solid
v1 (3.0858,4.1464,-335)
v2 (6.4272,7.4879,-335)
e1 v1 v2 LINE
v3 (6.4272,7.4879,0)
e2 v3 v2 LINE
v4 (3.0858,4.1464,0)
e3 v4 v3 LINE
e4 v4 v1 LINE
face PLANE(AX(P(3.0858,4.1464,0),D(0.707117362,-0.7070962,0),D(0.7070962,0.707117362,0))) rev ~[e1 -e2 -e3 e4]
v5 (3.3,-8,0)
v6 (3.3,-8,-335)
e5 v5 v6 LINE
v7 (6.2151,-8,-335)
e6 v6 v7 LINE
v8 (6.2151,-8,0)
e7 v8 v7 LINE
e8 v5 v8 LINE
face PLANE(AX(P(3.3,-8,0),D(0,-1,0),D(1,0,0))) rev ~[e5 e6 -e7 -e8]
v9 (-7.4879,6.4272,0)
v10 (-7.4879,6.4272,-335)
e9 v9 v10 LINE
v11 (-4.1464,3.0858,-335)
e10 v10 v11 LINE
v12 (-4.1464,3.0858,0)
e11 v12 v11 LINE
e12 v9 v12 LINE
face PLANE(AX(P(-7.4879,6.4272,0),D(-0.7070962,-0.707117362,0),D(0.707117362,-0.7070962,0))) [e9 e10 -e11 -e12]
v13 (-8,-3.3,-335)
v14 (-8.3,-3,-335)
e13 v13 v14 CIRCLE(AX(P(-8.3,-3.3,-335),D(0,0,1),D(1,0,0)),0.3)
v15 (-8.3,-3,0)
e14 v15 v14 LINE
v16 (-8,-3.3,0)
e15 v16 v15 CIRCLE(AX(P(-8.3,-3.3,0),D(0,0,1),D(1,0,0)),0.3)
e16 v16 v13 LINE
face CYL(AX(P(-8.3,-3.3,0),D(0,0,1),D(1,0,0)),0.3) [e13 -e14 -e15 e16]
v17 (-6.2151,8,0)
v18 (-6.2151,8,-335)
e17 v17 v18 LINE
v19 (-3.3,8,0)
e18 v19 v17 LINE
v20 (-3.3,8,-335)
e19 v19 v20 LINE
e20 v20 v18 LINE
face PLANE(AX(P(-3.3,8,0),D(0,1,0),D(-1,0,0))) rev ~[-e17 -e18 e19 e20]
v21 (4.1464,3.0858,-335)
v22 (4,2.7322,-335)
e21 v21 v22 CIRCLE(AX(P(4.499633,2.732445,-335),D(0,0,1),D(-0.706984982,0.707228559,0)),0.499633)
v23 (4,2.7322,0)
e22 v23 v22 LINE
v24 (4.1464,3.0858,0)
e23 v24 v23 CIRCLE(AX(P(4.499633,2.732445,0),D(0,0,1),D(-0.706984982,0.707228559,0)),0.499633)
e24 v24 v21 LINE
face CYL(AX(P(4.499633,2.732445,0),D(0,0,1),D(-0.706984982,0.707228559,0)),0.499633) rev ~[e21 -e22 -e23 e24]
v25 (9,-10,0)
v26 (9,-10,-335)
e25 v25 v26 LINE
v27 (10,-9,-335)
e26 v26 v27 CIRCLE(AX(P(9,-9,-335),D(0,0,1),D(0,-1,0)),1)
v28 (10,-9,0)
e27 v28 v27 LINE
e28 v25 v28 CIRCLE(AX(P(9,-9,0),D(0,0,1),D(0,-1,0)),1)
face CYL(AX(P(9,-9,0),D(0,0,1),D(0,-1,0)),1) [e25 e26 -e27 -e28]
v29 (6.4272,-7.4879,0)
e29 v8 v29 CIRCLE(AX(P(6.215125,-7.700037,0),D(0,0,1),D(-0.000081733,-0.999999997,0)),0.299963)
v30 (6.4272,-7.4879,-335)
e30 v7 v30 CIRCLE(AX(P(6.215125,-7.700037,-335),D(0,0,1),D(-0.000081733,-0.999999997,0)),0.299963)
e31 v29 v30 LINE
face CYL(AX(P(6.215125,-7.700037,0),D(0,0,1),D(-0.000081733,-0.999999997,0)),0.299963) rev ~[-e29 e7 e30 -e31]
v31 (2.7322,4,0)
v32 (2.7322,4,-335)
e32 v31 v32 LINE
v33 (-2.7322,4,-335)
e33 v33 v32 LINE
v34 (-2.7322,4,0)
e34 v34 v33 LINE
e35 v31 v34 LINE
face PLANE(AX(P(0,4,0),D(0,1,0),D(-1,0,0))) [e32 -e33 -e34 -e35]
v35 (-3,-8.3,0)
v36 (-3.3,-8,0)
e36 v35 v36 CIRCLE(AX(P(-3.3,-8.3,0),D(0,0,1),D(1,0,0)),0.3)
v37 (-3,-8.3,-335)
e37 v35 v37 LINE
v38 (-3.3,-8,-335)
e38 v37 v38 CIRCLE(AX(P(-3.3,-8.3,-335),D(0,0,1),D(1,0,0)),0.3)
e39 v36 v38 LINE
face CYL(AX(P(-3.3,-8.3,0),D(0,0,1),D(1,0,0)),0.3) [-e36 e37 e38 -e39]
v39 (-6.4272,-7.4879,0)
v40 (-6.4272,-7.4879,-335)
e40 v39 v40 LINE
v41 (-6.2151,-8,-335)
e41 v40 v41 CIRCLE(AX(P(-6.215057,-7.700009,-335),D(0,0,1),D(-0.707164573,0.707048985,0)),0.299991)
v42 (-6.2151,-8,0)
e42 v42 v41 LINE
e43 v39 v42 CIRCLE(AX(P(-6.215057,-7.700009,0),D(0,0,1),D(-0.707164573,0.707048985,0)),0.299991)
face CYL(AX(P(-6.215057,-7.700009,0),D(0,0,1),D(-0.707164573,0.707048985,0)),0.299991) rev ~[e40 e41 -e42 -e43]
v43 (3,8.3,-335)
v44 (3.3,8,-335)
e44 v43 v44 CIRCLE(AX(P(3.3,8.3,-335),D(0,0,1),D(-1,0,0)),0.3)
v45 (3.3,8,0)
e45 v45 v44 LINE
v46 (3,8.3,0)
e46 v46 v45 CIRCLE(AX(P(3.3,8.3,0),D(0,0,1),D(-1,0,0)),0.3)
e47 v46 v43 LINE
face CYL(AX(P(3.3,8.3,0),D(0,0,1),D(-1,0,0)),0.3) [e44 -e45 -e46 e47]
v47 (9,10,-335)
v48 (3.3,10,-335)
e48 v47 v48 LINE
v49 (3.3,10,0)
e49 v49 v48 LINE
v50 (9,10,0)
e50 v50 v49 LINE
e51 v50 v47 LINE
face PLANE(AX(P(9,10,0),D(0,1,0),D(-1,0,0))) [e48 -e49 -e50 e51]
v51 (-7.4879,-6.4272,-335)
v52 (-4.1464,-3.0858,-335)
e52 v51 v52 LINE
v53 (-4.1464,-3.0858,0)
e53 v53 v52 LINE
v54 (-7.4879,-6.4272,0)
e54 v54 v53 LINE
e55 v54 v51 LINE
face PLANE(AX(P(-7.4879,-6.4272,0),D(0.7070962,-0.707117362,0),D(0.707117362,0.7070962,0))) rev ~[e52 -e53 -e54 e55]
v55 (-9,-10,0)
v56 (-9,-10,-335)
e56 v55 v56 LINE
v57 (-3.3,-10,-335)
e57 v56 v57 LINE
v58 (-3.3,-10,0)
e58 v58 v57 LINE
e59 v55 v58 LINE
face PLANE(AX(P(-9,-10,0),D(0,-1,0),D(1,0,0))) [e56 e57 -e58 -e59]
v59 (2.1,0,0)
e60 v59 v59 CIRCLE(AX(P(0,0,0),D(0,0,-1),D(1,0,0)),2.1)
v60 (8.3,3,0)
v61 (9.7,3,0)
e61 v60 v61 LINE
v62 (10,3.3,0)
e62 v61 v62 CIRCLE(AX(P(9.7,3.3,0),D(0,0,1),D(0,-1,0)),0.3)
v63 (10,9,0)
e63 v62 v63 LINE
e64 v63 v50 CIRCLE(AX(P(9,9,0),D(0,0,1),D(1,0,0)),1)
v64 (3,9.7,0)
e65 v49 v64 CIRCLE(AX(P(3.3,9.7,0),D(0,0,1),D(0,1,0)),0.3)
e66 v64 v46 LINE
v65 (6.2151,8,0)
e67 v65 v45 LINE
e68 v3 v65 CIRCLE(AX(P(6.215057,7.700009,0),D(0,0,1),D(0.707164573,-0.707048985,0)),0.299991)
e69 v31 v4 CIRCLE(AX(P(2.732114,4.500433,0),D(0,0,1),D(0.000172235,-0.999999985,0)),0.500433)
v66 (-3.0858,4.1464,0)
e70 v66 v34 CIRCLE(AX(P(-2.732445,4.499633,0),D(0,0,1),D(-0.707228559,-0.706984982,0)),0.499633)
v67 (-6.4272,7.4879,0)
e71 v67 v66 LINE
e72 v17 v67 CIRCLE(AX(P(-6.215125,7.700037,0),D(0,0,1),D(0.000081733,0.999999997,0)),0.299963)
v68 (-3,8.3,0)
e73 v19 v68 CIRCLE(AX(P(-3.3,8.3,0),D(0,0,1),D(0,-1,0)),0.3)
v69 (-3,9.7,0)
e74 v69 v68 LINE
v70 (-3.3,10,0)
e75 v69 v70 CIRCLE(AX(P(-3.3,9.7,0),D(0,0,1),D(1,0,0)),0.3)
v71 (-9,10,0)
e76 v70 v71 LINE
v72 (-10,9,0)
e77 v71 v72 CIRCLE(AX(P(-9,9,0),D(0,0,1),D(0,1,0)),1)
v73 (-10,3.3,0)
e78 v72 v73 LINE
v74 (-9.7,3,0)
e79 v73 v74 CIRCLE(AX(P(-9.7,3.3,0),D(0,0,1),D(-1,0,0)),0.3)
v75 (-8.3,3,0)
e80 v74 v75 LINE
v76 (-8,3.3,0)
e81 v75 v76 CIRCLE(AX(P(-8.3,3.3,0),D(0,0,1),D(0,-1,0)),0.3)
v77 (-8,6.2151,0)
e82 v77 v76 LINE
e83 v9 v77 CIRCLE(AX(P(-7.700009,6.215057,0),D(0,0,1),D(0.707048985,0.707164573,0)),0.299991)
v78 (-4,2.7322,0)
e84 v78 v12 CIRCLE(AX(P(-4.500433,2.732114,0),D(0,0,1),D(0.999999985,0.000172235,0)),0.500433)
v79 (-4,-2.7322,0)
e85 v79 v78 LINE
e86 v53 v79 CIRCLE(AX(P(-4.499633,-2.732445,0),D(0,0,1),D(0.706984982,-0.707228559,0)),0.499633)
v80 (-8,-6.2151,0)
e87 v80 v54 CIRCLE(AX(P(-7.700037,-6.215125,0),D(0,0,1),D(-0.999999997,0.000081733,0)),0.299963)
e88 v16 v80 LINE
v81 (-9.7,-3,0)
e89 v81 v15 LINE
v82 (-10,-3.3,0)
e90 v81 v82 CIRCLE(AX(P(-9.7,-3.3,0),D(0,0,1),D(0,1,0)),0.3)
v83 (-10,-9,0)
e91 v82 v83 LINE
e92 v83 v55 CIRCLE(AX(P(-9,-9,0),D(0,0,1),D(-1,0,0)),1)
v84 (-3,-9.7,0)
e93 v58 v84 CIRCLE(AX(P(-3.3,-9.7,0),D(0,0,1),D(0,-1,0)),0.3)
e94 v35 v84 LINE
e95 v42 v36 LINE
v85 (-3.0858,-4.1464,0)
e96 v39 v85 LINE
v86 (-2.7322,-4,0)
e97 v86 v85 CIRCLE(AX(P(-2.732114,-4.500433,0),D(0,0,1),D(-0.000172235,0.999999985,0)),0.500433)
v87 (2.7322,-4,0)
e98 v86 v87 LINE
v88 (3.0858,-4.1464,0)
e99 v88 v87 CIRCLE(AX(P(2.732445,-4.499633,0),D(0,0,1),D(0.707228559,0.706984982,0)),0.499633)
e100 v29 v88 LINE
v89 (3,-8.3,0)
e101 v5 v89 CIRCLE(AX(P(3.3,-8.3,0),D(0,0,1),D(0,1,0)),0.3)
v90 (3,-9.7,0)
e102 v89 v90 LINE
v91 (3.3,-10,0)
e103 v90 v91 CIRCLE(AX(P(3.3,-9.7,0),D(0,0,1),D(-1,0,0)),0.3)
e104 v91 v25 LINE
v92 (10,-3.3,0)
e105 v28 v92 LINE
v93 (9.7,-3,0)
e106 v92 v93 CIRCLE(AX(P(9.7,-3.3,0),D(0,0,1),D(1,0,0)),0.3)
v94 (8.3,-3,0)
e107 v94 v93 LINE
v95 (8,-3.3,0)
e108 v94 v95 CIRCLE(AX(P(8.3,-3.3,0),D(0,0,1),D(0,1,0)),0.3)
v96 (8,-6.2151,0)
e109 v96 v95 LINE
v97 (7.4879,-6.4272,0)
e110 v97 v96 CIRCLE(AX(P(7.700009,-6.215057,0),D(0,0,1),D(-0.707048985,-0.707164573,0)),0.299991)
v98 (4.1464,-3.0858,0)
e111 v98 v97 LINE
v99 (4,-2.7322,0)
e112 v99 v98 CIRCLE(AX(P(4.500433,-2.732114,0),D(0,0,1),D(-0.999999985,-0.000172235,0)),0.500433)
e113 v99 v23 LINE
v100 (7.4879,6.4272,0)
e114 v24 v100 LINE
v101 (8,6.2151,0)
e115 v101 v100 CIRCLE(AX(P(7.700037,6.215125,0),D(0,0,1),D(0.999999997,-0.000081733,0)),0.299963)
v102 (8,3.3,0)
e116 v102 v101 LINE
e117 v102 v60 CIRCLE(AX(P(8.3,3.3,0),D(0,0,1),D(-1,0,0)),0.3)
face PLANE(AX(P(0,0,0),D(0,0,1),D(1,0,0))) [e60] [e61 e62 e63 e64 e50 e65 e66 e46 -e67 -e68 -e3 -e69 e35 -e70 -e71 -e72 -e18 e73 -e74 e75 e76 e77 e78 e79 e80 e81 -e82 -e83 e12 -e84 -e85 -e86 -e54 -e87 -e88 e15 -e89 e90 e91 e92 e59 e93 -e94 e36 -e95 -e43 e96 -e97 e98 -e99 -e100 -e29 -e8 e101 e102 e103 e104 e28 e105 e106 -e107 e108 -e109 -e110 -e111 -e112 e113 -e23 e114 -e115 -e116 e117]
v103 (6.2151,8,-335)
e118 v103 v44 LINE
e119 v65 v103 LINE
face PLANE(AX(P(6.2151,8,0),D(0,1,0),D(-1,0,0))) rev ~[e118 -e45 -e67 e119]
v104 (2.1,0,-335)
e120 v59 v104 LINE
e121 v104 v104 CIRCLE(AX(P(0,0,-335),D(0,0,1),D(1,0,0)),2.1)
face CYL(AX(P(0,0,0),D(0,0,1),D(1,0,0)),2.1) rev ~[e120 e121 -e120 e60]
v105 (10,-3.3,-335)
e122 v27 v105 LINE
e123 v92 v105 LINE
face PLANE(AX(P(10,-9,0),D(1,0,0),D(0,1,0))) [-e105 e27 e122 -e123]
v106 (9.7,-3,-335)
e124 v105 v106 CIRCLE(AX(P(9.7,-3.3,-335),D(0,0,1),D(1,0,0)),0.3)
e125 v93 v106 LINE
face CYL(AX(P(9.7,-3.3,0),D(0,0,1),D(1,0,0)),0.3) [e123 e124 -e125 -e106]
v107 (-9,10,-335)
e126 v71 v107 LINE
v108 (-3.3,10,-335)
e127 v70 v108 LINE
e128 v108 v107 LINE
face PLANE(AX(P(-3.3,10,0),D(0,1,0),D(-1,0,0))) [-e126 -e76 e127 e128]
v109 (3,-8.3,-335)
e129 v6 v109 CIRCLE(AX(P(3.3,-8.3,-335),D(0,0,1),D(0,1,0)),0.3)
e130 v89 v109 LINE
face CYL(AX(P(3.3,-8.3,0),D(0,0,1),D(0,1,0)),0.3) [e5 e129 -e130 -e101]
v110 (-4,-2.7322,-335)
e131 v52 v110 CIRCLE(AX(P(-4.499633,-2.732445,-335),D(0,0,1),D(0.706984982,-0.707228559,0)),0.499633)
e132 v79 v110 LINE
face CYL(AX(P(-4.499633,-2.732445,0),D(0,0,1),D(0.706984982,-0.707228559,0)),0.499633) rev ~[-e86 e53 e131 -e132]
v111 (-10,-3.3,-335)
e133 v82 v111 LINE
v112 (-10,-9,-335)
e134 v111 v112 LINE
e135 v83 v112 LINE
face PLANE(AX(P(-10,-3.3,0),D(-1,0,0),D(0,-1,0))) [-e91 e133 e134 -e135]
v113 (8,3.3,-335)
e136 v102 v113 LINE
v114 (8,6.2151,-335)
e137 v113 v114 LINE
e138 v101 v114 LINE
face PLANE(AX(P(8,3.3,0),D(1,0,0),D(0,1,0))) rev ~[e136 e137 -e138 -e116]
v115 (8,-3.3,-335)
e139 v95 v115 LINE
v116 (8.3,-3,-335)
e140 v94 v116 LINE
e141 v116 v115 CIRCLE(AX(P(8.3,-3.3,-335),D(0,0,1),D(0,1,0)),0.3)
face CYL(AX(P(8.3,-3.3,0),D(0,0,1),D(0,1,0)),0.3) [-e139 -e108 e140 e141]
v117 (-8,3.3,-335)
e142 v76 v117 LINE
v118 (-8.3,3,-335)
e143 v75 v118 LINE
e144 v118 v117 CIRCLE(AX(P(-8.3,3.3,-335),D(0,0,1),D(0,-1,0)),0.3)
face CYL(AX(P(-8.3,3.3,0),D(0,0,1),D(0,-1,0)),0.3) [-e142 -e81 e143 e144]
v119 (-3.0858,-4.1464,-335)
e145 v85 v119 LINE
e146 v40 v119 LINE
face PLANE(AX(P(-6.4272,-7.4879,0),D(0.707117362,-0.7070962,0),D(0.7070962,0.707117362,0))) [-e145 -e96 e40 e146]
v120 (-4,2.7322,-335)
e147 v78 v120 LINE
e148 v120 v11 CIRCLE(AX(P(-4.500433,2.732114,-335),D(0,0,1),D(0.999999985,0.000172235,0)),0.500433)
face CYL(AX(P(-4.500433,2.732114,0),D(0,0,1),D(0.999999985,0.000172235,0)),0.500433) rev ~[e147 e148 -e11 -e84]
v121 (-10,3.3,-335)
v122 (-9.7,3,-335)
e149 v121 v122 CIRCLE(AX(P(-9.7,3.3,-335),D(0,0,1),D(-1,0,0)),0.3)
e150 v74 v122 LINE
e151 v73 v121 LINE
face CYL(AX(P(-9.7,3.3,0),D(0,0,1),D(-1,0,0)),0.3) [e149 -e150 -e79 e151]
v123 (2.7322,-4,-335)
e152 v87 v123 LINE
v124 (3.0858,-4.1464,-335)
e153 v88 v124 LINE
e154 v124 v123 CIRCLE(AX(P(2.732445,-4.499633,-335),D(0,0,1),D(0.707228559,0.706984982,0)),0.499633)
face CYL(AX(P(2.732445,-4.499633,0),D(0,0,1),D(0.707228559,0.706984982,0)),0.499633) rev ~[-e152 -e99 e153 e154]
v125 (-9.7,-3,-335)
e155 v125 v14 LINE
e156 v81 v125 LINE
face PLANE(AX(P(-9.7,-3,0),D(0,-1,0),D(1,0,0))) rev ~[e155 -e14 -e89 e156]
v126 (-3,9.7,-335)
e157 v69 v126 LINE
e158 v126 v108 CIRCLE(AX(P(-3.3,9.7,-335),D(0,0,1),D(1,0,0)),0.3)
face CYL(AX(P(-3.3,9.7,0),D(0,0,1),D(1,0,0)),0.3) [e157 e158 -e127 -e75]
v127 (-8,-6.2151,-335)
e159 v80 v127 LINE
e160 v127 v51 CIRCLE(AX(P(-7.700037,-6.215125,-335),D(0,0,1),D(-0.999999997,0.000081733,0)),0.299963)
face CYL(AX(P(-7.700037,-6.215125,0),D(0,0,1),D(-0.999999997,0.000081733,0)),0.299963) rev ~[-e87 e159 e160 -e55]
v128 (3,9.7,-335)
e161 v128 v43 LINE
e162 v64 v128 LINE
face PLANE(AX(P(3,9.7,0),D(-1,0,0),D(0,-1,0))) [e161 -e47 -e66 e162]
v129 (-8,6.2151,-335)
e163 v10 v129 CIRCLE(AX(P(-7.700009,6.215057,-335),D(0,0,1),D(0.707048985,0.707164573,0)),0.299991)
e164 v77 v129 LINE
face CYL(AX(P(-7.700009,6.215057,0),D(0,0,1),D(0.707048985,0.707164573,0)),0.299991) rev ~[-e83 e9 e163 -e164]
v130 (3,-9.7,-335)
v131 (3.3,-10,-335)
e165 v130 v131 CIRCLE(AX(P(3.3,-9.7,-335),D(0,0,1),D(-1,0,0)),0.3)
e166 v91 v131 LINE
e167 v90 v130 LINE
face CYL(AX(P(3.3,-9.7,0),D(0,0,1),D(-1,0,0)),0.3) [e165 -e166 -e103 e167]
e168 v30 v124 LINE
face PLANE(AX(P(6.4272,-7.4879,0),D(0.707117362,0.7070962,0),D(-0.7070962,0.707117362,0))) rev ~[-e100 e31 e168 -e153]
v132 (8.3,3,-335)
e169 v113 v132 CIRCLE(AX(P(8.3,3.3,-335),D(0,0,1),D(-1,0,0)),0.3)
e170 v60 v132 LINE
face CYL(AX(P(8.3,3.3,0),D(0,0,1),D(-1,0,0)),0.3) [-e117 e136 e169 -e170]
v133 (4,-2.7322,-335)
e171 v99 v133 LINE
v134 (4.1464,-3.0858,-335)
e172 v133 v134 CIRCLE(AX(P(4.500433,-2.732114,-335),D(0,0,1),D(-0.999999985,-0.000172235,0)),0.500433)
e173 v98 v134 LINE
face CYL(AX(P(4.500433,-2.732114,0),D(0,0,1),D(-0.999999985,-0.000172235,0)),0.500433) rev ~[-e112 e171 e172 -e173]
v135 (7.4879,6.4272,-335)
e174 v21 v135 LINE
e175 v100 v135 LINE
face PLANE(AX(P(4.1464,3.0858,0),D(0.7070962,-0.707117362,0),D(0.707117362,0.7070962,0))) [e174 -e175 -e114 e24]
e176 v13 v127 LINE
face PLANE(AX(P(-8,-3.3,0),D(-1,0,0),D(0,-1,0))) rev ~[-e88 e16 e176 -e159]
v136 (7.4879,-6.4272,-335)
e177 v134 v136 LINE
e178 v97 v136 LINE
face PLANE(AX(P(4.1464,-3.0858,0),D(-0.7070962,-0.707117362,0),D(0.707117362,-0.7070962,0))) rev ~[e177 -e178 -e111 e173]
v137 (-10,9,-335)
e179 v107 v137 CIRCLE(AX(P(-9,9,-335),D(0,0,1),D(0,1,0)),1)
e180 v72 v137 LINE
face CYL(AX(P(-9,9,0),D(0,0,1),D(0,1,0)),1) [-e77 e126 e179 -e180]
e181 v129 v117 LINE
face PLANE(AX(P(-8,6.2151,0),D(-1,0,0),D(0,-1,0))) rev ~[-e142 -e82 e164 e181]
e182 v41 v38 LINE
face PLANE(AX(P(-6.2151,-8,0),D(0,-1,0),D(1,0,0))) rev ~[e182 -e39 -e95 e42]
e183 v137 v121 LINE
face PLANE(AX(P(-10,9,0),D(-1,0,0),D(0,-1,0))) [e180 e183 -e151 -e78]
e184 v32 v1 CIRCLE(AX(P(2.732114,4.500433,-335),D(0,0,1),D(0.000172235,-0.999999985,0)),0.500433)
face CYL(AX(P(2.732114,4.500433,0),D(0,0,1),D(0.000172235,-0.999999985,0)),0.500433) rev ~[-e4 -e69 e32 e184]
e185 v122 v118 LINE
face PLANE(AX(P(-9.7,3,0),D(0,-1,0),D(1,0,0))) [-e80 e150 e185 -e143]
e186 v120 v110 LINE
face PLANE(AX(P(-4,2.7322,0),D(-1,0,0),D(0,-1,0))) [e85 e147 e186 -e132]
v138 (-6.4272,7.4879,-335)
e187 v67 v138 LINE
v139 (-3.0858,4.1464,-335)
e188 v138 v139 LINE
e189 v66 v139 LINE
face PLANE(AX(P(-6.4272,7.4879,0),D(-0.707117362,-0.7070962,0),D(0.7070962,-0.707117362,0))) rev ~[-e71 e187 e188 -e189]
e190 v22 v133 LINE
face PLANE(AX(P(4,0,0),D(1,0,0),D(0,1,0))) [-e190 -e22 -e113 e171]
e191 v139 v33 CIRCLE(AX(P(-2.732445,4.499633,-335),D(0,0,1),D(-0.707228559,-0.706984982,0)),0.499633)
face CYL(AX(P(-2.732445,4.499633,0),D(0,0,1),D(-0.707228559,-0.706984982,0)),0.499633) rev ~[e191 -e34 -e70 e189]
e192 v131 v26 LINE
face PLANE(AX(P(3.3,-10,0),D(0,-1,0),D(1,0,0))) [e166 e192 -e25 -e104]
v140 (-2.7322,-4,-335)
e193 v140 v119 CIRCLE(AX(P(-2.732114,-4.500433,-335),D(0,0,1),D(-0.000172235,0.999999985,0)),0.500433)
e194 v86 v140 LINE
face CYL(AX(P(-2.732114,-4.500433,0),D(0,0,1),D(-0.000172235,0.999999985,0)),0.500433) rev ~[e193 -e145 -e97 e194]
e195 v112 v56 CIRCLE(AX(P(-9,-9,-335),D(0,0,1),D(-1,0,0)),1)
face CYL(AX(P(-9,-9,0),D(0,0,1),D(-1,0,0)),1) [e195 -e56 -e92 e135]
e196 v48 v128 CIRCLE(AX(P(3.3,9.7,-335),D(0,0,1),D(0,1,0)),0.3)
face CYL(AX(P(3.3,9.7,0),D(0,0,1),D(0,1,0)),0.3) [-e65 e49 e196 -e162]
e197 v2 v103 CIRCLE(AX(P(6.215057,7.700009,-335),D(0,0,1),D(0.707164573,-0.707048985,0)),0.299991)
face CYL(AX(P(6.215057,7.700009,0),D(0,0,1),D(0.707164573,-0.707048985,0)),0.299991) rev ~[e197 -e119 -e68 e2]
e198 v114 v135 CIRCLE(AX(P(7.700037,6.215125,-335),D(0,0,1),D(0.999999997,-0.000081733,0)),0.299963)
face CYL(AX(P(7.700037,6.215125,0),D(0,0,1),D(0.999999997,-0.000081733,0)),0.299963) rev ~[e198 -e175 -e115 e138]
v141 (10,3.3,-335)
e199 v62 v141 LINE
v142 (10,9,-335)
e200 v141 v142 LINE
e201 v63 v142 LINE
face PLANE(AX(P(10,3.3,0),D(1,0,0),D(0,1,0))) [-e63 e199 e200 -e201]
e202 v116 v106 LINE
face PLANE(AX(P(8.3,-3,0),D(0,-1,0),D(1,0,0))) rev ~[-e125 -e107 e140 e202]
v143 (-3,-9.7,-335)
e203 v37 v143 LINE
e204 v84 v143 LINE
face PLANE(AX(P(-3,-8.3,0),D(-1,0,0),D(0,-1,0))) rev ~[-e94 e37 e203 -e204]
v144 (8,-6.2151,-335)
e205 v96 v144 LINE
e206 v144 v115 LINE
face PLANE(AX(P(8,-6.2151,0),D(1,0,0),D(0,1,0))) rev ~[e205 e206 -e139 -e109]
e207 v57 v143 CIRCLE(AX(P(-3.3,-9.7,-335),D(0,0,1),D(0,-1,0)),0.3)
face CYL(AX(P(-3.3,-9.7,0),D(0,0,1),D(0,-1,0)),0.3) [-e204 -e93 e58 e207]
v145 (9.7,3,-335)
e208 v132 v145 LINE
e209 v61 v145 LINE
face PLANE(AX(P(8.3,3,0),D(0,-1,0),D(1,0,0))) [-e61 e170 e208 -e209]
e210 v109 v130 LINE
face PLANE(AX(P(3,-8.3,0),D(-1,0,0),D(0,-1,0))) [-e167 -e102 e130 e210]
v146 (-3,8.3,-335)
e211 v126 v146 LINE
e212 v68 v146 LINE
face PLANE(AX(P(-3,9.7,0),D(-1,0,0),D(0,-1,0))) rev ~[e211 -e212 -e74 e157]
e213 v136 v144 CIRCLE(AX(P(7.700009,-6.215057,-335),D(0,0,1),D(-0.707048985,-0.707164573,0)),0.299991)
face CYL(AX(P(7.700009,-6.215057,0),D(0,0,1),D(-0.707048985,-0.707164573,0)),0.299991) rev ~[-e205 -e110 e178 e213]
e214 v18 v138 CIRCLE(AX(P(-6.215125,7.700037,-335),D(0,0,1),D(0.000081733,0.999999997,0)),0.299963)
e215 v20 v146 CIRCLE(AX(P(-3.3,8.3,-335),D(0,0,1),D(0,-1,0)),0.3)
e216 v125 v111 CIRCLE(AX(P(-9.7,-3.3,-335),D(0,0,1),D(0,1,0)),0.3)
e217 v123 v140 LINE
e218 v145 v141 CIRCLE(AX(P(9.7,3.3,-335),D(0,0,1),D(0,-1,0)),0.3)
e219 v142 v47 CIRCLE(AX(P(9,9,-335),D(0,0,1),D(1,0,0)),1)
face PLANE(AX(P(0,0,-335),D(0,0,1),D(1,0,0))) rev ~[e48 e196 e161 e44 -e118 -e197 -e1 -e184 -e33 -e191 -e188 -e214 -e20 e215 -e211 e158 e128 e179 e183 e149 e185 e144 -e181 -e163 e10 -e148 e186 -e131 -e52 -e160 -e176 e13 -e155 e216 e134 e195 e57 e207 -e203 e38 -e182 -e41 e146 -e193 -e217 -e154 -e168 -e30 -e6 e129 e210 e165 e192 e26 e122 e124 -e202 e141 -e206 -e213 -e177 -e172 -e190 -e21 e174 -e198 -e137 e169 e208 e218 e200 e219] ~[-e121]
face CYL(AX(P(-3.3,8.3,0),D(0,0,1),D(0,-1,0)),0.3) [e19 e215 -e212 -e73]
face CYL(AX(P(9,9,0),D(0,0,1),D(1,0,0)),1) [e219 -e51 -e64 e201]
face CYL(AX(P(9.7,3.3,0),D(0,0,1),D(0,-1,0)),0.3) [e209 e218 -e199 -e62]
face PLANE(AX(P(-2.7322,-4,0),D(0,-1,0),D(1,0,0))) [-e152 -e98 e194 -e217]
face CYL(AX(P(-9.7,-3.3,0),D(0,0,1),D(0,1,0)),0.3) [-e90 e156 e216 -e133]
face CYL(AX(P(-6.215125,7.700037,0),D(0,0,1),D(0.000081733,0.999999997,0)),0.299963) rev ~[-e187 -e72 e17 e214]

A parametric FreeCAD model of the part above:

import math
import FreeCAD as App
import Part
import Sketcher

V = App.Vector
Q = App.Units.Quantity

doc = App.newDocument("Part")
params = doc.addObject("Spreadsheet::Sheet", "Params")
for row, (alias, value) in enumerate([
    ("sketch1_radius", "1 mm"),
    ("sketch1_radius2", "0.5 mm"),
    ("sketch1_radius3", "0.3 mm"),
    ("sketch1_width", "5.7 mm"),
    ("pad1_length", "335 mm"),
    ("sketch2_diameter", "4.2 mm"),
    ("pocket1_length", "335 mm"),
], start=1):
    params.set(f"A{row}", alias)
    params.set(f"B{row}", "=" + value)
    params.setAlias(f"B{row}", alias)

body = doc.addObject("PartDesign::Body", "Body")

# Sketch on XY plane
sketch1 = doc.addObject("Sketcher::SketchObject", "Sketch")
body.addObject(sketch1)
sketch1.AttachmentSupport = (doc.XY_Plane, [""])
sketch1.MapMode = "FlatFace"
sketch1.addGeometry([
    Part.LineSegment(V(-4, 2.73, 0), V(-4, -2.73, 0)),  # 0
    Part.ArcOfCircle(Part.Circle(V(-4.5, -2.73, 0), V(0, 0, 1), 0.5), math.radians(-45), math.radians(0)),  # 1
    Part.LineSegment(V(-4.15, -3.09, 0), V(-7.49, -6.43, 0)),  # 2
    Part.ArcOfCircle(Part.Circle(V(-7.7, -6.22, 0), V(0, 0, 1), 0.3), math.radians(180), math.radians(315)),  # 3
    Part.LineSegment(V(-8, -6.22, 0), V(-8, -3.3, 0)),  # 4
    Part.ArcOfCircle(Part.Circle(V(-8.3, -3.3, 0), V(0, 0, 1), 0.3), math.radians(0), math.radians(90)),  # 5
    Part.LineSegment(V(-8.3, -3, 0), V(-9.7, -3, 0)),  # 6
    Part.ArcOfCircle(Part.Circle(V(-9.7, -3.3, 0), V(0, 0, 1), 0.3), math.radians(90), math.radians(180)),  # 7
    Part.LineSegment(V(-10, -3.3, 0), V(-10, -9, 0)),  # 8
    Part.ArcOfCircle(Part.Circle(V(-9, -9, 0), V(0, 0, 1), 1), math.radians(180), math.radians(270)),  # 9
    Part.LineSegment(V(-9, -10, 0), V(-3.3, -10, 0)),  # 10
    Part.ArcOfCircle(Part.Circle(V(-3.3, -9.7, 0), V(0, 0, 1), 0.3), math.radians(-90), math.radians(0)),  # 11
    Part.LineSegment(V(-3, -9.7, 0), V(-3, -8.3, 0)),  # 12
    Part.ArcOfCircle(Part.Circle(V(-3.3, -8.3, 0), V(0, 0, 1), 0.3), math.radians(0), math.radians(90)),  # 13
    Part.LineSegment(V(-3.3, -8, 0), V(-6.22, -8, 0)),  # 14
    Part.ArcOfCircle(Part.Circle(V(-6.22, -7.7, 0), V(0, 0, 1), 0.3), math.radians(135), math.radians(270)),  # 15
    Part.LineSegment(V(-6.43, -7.49, 0), V(-3.09, -4.15, 0)),  # 16
    Part.ArcOfCircle(Part.Circle(V(-2.73, -4.5, 0), V(0, 0, 1), 0.5), math.radians(90), math.radians(135)),  # 17
    Part.LineSegment(V(-2.73, -4, 0), V(2.73, -4, 0)),  # 18
    Part.ArcOfCircle(Part.Circle(V(2.73, -4.5, 0), V(0, 0, 1), 0.5), math.radians(45), math.radians(90)),  # 19
    Part.LineSegment(V(3.09, -4.15, 0), V(6.43, -7.49, 0)),  # 20
    Part.ArcOfCircle(Part.Circle(V(6.22, -7.7, 0), V(0, 0, 1), 0.3), math.radians(-90), math.radians(45)),  # 21
    Part.LineSegment(V(6.22, -8, 0), V(3.3, -8, 0)),  # 22
    Part.ArcOfCircle(Part.Circle(V(3.3, -8.3, 0), V(0, 0, 1), 0.3), math.radians(90), math.radians(180)),  # 23
    Part.LineSegment(V(3, -8.3, 0), V(3, -9.7, 0)),  # 24
    Part.ArcOfCircle(Part.Circle(V(3.3, -9.7, 0), V(0, 0, 1), 0.3), math.radians(180), math.radians(270)),  # 25
    Part.LineSegment(V(3.3, -10, 0), V(9, -10, 0)),  # 26
    Part.ArcOfCircle(Part.Circle(V(9, -9, 0), V(0, 0, 1), 1), math.radians(-90), math.radians(0)),  # 27
    Part.LineSegment(V(10, -9, 0), V(10, -3.3, 0)),  # 28
    Part.ArcOfCircle(Part.Circle(V(9.7, -3.3, 0), V(0, 0, 1), 0.3), math.radians(0), math.radians(90)),  # 29
    Part.LineSegment(V(9.7, -3, 0), V(8.3, -3, 0)),  # 30
    Part.ArcOfCircle(Part.Circle(V(8.3, -3.3, 0), V(0, 0, 1), 0.3), math.radians(90), math.radians(180)),  # 31
    Part.LineSegment(V(8, -3.3, 0), V(8, -6.22, 0)),  # 32
    Part.ArcOfCircle(Part.Circle(V(7.7, -6.22, 0), V(0, 0, 1), 0.3), math.radians(-135), math.radians(0)),  # 33
    Part.LineSegment(V(7.49, -6.43, 0), V(4.15, -3.09, 0)),  # 34
    Part.ArcOfCircle(Part.Circle(V(4.5, -2.73, 0), V(0, 0, 1), 0.5), math.radians(180), math.radians(225)),  # 35
    Part.LineSegment(V(4, -2.73, 0), V(4, 2.73, 0)),  # 36
    Part.ArcOfCircle(Part.Circle(V(4.5, 2.73, 0), V(0, 0, 1), 0.5), math.radians(135), math.radians(180)),  # 37
    Part.LineSegment(V(4.15, 3.09, 0), V(7.49, 6.43, 0)),  # 38
    Part.ArcOfCircle(Part.Circle(V(7.7, 6.22, 0), V(0, 0, 1), 0.3), math.radians(0), math.radians(135)),  # 39
    Part.LineSegment(V(8, 6.22, 0), V(8, 3.3, 0)),  # 40
    Part.ArcOfCircle(Part.Circle(V(8.3, 3.3, 0), V(0, 0, 1), 0.3), math.radians(180), math.radians(270)),  # 41
    Part.LineSegment(V(8.3, 3, 0), V(9.7, 3, 0)),  # 42
    Part.ArcOfCircle(Part.Circle(V(9.7, 3.3, 0), V(0, 0, 1), 0.3), math.radians(-90), math.radians(0)),  # 43
    Part.LineSegment(V(10, 3.3, 0), V(10, 9, 0)),  # 44
    Part.ArcOfCircle(Part.Circle(V(9, 9, 0), V(0, 0, 1), 1), math.radians(0), math.radians(90)),  # 45
    Part.LineSegment(V(9, 10, 0), V(3.3, 10, 0)),  # 46
    Part.ArcOfCircle(Part.Circle(V(3.3, 9.7, 0), V(0, 0, 1), 0.3), math.radians(90), math.radians(180)),  # 47
    Part.LineSegment(V(3, 9.7, 0), V(3, 8.3, 0)),  # 48
    Part.ArcOfCircle(Part.Circle(V(3.3, 8.3, 0), V(0, 0, 1), 0.3), math.radians(180), math.radians(270)),  # 49
    Part.LineSegment(V(3.3, 8, 0), V(6.22, 8, 0)),  # 50
    Part.ArcOfCircle(Part.Circle(V(6.22, 7.7, 0), V(0, 0, 1), 0.3), math.radians(-45), math.radians(90)),  # 51
    Part.LineSegment(V(6.43, 7.49, 0), V(3.09, 4.15, 0)),  # 52
    Part.ArcOfCircle(Part.Circle(V(2.73, 4.5, 0), V(0, 0, 1), 0.5), math.radians(-90), math.radians(-45)),  # 53
    Part.LineSegment(V(2.73, 4, 0), V(-2.73, 4, 0)),  # 54
    Part.ArcOfCircle(Part.Circle(V(-2.73, 4.5, 0), V(0, 0, 1), 0.5), math.radians(-135), math.radians(-90)),  # 55
    Part.LineSegment(V(-3.09, 4.15, 0), V(-6.43, 7.49, 0)),  # 56
    Part.ArcOfCircle(Part.Circle(V(-6.22, 7.7, 0), V(0, 0, 1), 0.3), math.radians(90), math.radians(225)),  # 57
    Part.LineSegment(V(-6.22, 8, 0), V(-3.3, 8, 0)),  # 58
    Part.ArcOfCircle(Part.Circle(V(-3.3, 8.3, 0), V(0, 0, 1), 0.3), math.radians(-90), math.radians(0)),  # 59
    Part.LineSegment(V(-3, 8.3, 0), V(-3, 9.7, 0)),  # 60
    Part.ArcOfCircle(Part.Circle(V(-3.3, 9.7, 0), V(0, 0, 1), 0.3), math.radians(0), math.radians(90)),  # 61
    Part.LineSegment(V(-3.3, 10, 0), V(-9, 10, 0)),  # 62
    Part.ArcOfCircle(Part.Circle(V(-9, 9, 0), V(0, 0, 1), 1), math.radians(90), math.radians(180)),  # 63
    Part.LineSegment(V(-10, 9, 0), V(-10, 3.3, 0)),  # 64
    Part.ArcOfCircle(Part.Circle(V(-9.7, 3.3, 0), V(0, 0, 1), 0.3), math.radians(180), math.radians(270)),  # 65
    Part.LineSegment(V(-9.7, 3, 0), V(-8.3, 3, 0)),  # 66
    Part.ArcOfCircle(Part.Circle(V(-8.3, 3.3, 0), V(0, 0, 1), 0.3), math.radians(-90), math.radians(0)),  # 67
    Part.LineSegment(V(-8, 3.3, 0), V(-8, 6.22, 0)),  # 68
    Part.ArcOfCircle(Part.Circle(V(-7.7, 6.22, 0), V(0, 0, 1), 0.3), math.radians(45), math.radians(180)),  # 69
    Part.LineSegment(V(-7.49, 6.43, 0), V(-4.15, 3.09, 0)),  # 70
    Part.ArcOfCircle(Part.Circle(V(-4.5, 2.73, 0), V(0, 0, 1), 0.5), math.radians(0), math.radians(45)),  # 71
], False)
sketch1.addConstraint([
    Sketcher.Constraint("Tangent", 0, 2, 1, 2),
    Sketcher.Constraint("Tangent", 1, 1, 2, 1),
    Sketcher.Constraint("Tangent", 2, 2, 3, 2),
    Sketcher.Constraint("Tangent", 3, 1, 4, 1),
    Sketcher.Constraint("Tangent", 4, 2, 5, 1),
    Sketcher.Constraint("Tangent", 5, 2, 6, 1),
    Sketcher.Constraint("Tangent", 6, 2, 7, 1),
    Sketcher.Constraint("Tangent", 7, 2, 8, 1),
    Sketcher.Constraint("Tangent", 8, 2, 9, 1),
    Sketcher.Constraint("Tangent", 9, 2, 10, 1),
    Sketcher.Constraint("Tangent", 10, 2, 11, 1),
    Sketcher.Constraint("Tangent", 11, 2, 12, 1),
    Sketcher.Constraint("Tangent", 12, 2, 13, 1),
    Sketcher.Constraint("Tangent", 13, 2, 14, 1),
    Sketcher.Constraint("Tangent", 14, 2, 15, 2),
    Sketcher.Constraint("Tangent", 15, 1, 16, 1),
    Sketcher.Constraint("Tangent", 16, 2, 17, 2),
    Sketcher.Constraint("Tangent", 17, 1, 18, 1),
    Sketcher.Constraint("Tangent", 18, 2, 19, 2),
    Sketcher.Constraint("Tangent", 19, 1, 20, 1),
    Sketcher.Constraint("Tangent", 20, 2, 21, 2),
    Sketcher.Constraint("Tangent", 21, 1, 22, 1),
    Sketcher.Constraint("Tangent", 22, 2, 23, 1),
    Sketcher.Constraint("Tangent", 23, 2, 24, 1),
    Sketcher.Constraint("Tangent", 24, 2, 25, 1),
    Sketcher.Constraint("Tangent", 25, 2, 26, 1),
    Sketcher.Constraint("Tangent", 26, 2, 27, 1),
    Sketcher.Constraint("Tangent", 27, 2, 28, 1),
    Sketcher.Constraint("Tangent", 28, 2, 29, 1),
    Sketcher.Constraint("Tangent", 29, 2, 30, 1),
    Sketcher.Constraint("Tangent", 30, 2, 31, 1),
    Sketcher.Constraint("Tangent", 31, 2, 32, 1),
    Sketcher.Constraint("Tangent", 32, 2, 33, 2),
    Sketcher.Constraint("Tangent", 33, 1, 34, 1),
    Sketcher.Constraint("Tangent", 34, 2, 35, 2),
    Sketcher.Constraint("Tangent", 35, 1, 36, 1),
    Sketcher.Constraint("Tangent", 36, 2, 37, 2),
    Sketcher.Constraint("Tangent", 37, 1, 38, 1),
    Sketcher.Constraint("Tangent", 38, 2, 39, 2),
    Sketcher.Constraint("Tangent", 39, 1, 40, 1),
    Sketcher.Constraint("Tangent", 40, 2, 41, 1),
    Sketcher.Constraint("Tangent", 41, 2, 42, 1),
    Sketcher.Constraint("Tangent", 42, 2, 43, 1),
    Sketcher.Constraint("Tangent", 43, 2, 44, 1),
    Sketcher.Constraint("Tangent", 44, 2, 45, 1),
    Sketcher.Constraint("Tangent", 45, 2, 46, 1),
    Sketcher.Constraint("Tangent", 46, 2, 47, 1),
    Sketcher.Constraint("Tangent", 47, 2, 48, 1),
    Sketcher.Constraint("Tangent", 48, 2, 49, 1),
    Sketcher.Constraint("Tangent", 49, 2, 50, 1),
    Sketcher.Constraint("Tangent", 50, 2, 51, 2),
    Sketcher.Constraint("Tangent", 51, 1, 52, 1),
    Sketcher.Constraint("Tangent", 52, 2, 53, 2),
    Sketcher.Constraint("Tangent", 53, 1, 54, 1),
    Sketcher.Constraint("Tangent", 54, 2, 55, 2),
    Sketcher.Constraint("Tangent", 55, 1, 56, 1),
    Sketcher.Constraint("Tangent", 56, 2, 57, 2),
    Sketcher.Constraint("Tangent", 57, 1, 58, 1),
    Sketcher.Constraint("Tangent", 58, 2, 59, 1),
    Sketcher.Constraint("Tangent", 59, 2, 60, 1),
    Sketcher.Constraint("Tangent", 60, 2, 61, 1),
    Sketcher.Constraint("Tangent", 61, 2, 62, 1),
    Sketcher.Constraint("Tangent", 62, 2, 63, 1),
    Sketcher.Constraint("Tangent", 63, 2, 64, 1),
    Sketcher.Constraint("Tangent", 64, 2, 65, 1),
    Sketcher.Constraint("Tangent", 65, 2, 66, 1),
    Sketcher.Constraint("Tangent", 66, 2, 67, 1),
    Sketcher.Constraint("Tangent", 67, 2, 68, 1),
    Sketcher.Constraint("Tangent", 68, 2, 69, 2),
    Sketcher.Constraint("Tangent", 69, 1, 70, 1),
    Sketcher.Constraint("Tangent", 70, 2, 71, 2),
    Sketcher.Constraint("Tangent", 71, 1, 0, 1),
    Sketcher.Constraint("Vertical", 0),
    Sketcher.Constraint("Vertical", 4),
    Sketcher.Constraint("Horizontal", 6),
    Sketcher.Constraint("Vertical", 8),
    Sketcher.Constraint("Horizontal", 10),
    Sketcher.Constraint("Vertical", 12),
    Sketcher.Constraint("Horizontal", 14),
    Sketcher.Constraint("Horizontal", 18),
    Sketcher.Constraint("Horizontal", 22),
    Sketcher.Constraint("Vertical", 24),
    Sketcher.Constraint("Horizontal", 26),
    Sketcher.Constraint("Vertical", 28),
    Sketcher.Constraint("Horizontal", 30),
    Sketcher.Constraint("Vertical", 32),
    Sketcher.Constraint("Vertical", 36),
    Sketcher.Constraint("Vertical", 40),
    Sketcher.Constraint("Horizontal", 42),
    Sketcher.Constraint("Vertical", 44),
    Sketcher.Constraint("Horizontal", 46),
    Sketcher.Constraint("Vertical", 48),
    Sketcher.Constraint("Horizontal", 50),
    Sketcher.Constraint("Horizontal", 54),
    Sketcher.Constraint("Horizontal", 58),
    Sketcher.Constraint("Vertical", 60),
    Sketcher.Constraint("Horizontal", 62),
    Sketcher.Constraint("Vertical", 64),
    Sketcher.Constraint("Horizontal", 66),
    Sketcher.Constraint("Vertical", 68),
    Sketcher.Constraint("Equal", 3, 5),
    Sketcher.Constraint("Equal", 5, 7),
    Sketcher.Constraint("Equal", 7, 11),
    Sketcher.Constraint("Equal", 11, 13),
    Sketcher.Constraint("Equal", 13, 15),
    Sketcher.Constraint("Equal", 1, 17),
    Sketcher.Constraint("Equal", 17, 19),
    Sketcher.Constraint("Equal", 15, 21),
    Sketcher.Constraint("Equal", 21, 23),
    Sketcher.Constraint("Equal", 23, 25),
    Sketcher.Constraint("Equal", 9, 27),
    Sketcher.Constraint("Equal", 25, 29),
    Sketcher.Constraint("Equal", 29, 31),
    Sketcher.Constraint("Equal", 31, 33),
    Sketcher.Constraint("Equal", 19, 35),
    Sketcher.Constraint("Equal", 35, 37),
    Sketcher.Constraint("Equal", 33, 39),
    Sketcher.Constraint("Equal", 39, 41),
    Sketcher.Constraint("Equal", 41, 43),
    Sketcher.Constraint("Equal", 27, 45),
    Sketcher.Constraint("Equal", 43, 47),
    Sketcher.Constraint("Equal", 47, 49),
    Sketcher.Constraint("Equal", 49, 51),
    Sketcher.Constraint("Equal", 37, 53),
    Sketcher.Constraint("Equal", 53, 55),
    Sketcher.Constraint("Equal", 51, 57),
    Sketcher.Constraint("Equal", 57, 59),
    Sketcher.Constraint("Equal", 59, 61),
    Sketcher.Constraint("Equal", 45, 63),
    Sketcher.Constraint("Equal", 61, 65),
    Sketcher.Constraint("Equal", 65, 67),
    Sketcher.Constraint("Equal", 67, 69),
    Sketcher.Constraint("Equal", 55, 71),
    Sketcher.Constraint("Symmetric", 1, 3, 37, 3, -1, 1),
    Sketcher.Constraint("Symmetric", 3, 3, 39, 3, -1, 1),
    Sketcher.Constraint("Symmetric", 7, 3, 43, 3, -1, 1),
    Sketcher.Constraint("Symmetric", 11, 3, 47, 3, -1, 1),
    Sketcher.Constraint("Symmetric", 15, 3, 51, 3, -1, 1),
    Sketcher.Constraint("Symmetric", 17, 3, 53, 3, -1, 1),
    Sketcher.Constraint("Symmetric", 21, 3, 57, 3, -1, 1),
    Sketcher.Constraint("Symmetric", 25, 3, 61, 3, -1, 1),
    Sketcher.Constraint("Symmetric", 29, 3, 65, 3, -1, 1),
    Sketcher.Constraint("Symmetric", 33, 3, 69, 3, -1, 1),
    Sketcher.Constraint("Symmetric", 15, 3, 21, 3, -2),
    Sketcher.Constraint("Symmetric", 11, 3, 25, 3, -2),
    Sketcher.Constraint("Symmetric", 7, 3, 29, 3, -2),
    Sketcher.Constraint("Symmetric", 3, 3, 33, 3, -2),
    Sketcher.Constraint("Parallel", 2, 16),
    Sketcher.Constraint("Perpendicular", 16, 20),
    Sketcher.Constraint("Parallel", 20, 34),
    Sketcher.Constraint("Perpendicular", 52, 56),
    Sketcher.Constraint("Parallel", 56, 70),
    Sketcher.Constraint("Horizontal", 1, 3, 35, 3),
    Sketcher.Constraint("Equal", 54, 0),
    Sketcher.Constraint("Equal", 58, 4),
    Sketcher.Constraint("Equal", 62, 8),
    Sketcher.Constraint("Equal", 66, 12),
    Sketcher.Constraint("Equal", 2, 16),
    Sketcher.Constraint("Radius", 9, Q("1 mm")),
    Sketcher.Constraint("Radius", 1, Q("0.5 mm")),
    Sketcher.Constraint("Radius", 3, Q("0.3 mm")),
    Sketcher.Constraint("DistanceX", 0, 2, -1, 1, Q("4 mm")),
    Sketcher.Constraint("DistanceX", 3, 1, -1, 1, Q("8 mm")),
    Sketcher.Constraint("DistanceX", 7, 2, -1, 1, Q("10 mm")),
    Sketcher.Constraint("DistanceX", 10, 1, 10, 2, Q("5.7 mm")),
    Sketcher.Constraint("DistanceX", 14, 2, 14, 1, Q("2.915 mm")),
])
sketch1.setExpression("Constraints[158]", "Params.sketch1_radius")
sketch1.setExpression("Constraints[159]", "Params.sketch1_radius2")
sketch1.setExpression("Constraints[160]", "Params.sketch1_radius3")
sketch1.setExpression("Constraints[164]", "Params.sketch1_width")
pad1 = doc.addObject("PartDesign::Pad", "Pad")
body.addObject(pad1)
pad1.Profile = sketch1
pad1.setExpression("Length", "Params.pad1_length")
pad1.Reversed = True

# Sketch on XY plane
sketch2 = doc.addObject("Sketcher::SketchObject", "Sketch001")
body.addObject(sketch2)
sketch2.AttachmentSupport = (doc.XY_Plane, [""])
sketch2.MapMode = "FlatFace"
sketch2.addGeometry(Part.Circle(V(0, 0, 0), V(0, 0, 1), 2.1), False)
sketch2.addConstraint([
    Sketcher.Constraint("Coincident", 0, 3, -1, 1),
    Sketcher.Constraint("Diameter", 0, Q("4.2 mm")),
])
sketch2.setExpression("Constraints[1]", "Params.sketch2_diameter")
pocket1 = doc.addObject("PartDesign::Pocket", "Pocket")
body.addObject(pocket1)
pocket1.Profile = sketch2
pocket1.setExpression("Length", "Params.pocket1_length")

doc.recompute()
